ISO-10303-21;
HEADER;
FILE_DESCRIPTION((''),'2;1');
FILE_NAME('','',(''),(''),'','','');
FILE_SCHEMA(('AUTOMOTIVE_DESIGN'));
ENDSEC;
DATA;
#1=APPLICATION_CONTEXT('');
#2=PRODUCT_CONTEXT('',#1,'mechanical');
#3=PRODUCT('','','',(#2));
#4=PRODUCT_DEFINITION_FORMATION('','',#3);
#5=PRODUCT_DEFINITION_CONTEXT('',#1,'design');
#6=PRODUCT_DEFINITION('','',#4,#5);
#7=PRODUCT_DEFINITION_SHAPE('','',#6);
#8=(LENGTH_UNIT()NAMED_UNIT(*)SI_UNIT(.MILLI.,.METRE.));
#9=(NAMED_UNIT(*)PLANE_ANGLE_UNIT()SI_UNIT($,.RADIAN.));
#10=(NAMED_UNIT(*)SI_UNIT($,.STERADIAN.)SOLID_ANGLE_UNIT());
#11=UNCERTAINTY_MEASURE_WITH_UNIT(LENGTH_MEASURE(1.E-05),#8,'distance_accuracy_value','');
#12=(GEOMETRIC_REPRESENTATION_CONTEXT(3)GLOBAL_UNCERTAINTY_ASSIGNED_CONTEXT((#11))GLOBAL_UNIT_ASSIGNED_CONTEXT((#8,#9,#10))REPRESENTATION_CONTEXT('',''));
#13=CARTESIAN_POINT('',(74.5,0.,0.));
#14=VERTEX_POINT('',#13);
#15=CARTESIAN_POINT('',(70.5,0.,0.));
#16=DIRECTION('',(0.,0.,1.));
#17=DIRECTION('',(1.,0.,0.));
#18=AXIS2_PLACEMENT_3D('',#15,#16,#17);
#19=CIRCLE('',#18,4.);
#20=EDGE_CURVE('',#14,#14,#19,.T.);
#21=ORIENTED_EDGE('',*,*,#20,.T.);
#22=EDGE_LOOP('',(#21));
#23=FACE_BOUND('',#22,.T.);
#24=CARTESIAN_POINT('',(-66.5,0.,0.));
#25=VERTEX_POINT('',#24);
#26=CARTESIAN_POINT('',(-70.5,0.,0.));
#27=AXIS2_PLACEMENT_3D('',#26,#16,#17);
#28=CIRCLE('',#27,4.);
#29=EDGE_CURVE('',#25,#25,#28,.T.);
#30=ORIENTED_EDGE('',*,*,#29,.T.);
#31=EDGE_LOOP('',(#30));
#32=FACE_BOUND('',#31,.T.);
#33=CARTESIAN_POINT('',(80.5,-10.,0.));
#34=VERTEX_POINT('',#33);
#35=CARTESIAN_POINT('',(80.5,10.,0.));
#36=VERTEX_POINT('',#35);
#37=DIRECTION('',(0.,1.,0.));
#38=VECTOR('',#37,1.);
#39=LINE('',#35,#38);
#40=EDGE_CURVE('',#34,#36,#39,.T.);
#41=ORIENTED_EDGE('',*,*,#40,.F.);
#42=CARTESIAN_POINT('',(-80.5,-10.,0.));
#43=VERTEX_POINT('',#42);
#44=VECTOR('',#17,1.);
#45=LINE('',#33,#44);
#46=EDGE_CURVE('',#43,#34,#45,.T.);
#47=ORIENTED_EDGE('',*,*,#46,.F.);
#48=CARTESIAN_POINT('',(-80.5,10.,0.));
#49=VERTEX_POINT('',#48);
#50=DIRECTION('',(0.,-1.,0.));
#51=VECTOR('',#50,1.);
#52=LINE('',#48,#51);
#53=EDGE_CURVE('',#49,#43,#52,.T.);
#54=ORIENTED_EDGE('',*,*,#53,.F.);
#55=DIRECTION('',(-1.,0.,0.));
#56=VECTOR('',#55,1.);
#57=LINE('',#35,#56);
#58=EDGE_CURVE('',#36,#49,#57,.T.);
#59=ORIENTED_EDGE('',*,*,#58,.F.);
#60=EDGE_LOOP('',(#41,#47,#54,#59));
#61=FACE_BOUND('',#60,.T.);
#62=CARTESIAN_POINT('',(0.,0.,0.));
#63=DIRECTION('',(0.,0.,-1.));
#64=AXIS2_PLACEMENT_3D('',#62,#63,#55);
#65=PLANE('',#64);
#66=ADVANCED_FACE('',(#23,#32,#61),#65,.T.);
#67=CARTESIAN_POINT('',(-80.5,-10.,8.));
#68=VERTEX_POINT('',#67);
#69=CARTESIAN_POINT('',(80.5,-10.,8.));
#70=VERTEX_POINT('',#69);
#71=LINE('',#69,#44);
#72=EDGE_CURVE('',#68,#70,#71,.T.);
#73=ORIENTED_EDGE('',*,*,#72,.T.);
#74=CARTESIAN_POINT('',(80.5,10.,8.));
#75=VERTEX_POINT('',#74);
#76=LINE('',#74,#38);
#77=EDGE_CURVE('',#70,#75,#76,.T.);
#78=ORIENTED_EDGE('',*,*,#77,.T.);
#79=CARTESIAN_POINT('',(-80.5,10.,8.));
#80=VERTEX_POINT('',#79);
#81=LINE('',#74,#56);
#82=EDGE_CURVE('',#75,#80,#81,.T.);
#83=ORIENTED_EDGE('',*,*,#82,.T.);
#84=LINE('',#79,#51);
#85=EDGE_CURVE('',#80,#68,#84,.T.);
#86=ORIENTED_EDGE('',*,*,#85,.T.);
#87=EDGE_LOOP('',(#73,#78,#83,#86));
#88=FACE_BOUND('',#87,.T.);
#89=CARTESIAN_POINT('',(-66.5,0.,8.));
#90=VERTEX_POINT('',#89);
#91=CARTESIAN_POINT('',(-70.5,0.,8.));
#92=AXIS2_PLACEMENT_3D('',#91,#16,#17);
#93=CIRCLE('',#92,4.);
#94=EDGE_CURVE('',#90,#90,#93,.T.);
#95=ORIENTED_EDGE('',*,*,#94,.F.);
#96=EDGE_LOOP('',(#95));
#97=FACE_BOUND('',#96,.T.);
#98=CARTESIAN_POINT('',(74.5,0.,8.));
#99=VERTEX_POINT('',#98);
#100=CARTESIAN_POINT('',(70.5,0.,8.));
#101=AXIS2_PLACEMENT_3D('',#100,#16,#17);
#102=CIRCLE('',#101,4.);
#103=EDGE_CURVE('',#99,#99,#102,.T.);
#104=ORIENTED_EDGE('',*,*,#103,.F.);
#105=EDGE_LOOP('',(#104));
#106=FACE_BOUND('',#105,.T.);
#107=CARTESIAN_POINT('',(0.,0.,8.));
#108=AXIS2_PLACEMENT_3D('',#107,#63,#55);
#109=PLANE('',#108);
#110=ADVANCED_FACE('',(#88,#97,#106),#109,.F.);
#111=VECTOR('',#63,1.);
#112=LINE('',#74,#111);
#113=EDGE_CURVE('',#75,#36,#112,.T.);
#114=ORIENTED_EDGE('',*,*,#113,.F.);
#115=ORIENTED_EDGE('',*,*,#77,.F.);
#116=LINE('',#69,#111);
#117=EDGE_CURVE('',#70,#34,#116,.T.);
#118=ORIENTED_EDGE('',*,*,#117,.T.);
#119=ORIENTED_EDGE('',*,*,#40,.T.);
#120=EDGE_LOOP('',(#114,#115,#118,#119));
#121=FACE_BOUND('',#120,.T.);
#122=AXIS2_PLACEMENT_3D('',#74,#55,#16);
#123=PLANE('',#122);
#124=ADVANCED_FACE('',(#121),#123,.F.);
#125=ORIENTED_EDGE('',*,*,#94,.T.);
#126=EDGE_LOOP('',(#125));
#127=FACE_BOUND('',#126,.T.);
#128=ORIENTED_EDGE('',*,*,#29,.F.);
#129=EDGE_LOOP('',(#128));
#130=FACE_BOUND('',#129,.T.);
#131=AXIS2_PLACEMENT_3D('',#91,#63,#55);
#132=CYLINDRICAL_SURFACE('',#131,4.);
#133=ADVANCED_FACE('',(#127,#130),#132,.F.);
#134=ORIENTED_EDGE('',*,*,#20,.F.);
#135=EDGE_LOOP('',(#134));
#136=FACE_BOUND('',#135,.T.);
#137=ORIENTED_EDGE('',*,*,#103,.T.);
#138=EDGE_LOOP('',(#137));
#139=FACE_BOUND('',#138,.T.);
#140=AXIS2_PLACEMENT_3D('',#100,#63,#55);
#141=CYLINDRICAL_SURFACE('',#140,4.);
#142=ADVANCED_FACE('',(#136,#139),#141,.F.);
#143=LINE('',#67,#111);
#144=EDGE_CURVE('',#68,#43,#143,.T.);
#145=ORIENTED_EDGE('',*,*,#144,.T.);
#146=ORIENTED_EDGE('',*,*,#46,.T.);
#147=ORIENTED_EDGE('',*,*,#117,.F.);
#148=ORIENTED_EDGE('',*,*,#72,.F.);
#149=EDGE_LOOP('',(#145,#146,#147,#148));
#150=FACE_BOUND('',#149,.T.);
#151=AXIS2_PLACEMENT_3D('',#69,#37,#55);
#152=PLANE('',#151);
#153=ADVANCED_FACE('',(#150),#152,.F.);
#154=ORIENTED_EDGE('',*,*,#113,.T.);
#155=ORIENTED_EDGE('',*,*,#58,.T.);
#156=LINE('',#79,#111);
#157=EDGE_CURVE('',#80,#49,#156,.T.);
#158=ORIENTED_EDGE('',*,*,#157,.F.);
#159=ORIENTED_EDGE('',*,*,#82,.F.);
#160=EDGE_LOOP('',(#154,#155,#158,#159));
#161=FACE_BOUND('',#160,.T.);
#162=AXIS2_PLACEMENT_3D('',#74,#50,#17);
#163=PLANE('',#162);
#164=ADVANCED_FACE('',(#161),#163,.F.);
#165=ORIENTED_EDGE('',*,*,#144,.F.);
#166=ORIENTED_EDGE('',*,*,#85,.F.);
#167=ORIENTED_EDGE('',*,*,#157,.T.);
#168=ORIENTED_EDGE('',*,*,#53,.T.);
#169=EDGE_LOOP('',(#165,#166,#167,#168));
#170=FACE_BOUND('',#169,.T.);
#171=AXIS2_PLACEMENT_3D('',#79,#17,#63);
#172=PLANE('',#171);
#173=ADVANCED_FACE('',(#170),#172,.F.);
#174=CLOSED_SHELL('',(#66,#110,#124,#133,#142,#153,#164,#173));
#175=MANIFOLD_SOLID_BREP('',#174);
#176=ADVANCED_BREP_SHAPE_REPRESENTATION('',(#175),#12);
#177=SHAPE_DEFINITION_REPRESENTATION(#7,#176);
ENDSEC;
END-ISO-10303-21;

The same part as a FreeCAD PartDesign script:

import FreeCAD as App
import Part
import Sketcher
from FreeCAD import Vector
Q = App.Units.Quantity


def add_polygon(sketch, points):
    """Adds a closed chain of lines whose ends are joined by coincident constraints."""
    first, n = sketch.GeometryCount, len(points)
    for a, b in zip(points, points[1:] + points[:1]):
        sketch.addGeometry(Part.LineSegment(App.Vector(*a, 0), App.Vector(*b, 0)), False)
    for i in range(n):
        sketch.addConstraint(Sketcher.Constraint("Coincident", first + i, 2, first + (i + 1) % n, 1))

doc = App.newDocument("Part")
params = doc.addObject("Spreadsheet::Sheet", "Params")
for row, (alias, value) in enumerate([
    ("sketch1_diameter", "8 mm"),
    ("sketch1_width", "161 mm"),
    ("sketch1_height", "20 mm"),
    ("pad1_length", "8 mm"),
], start=1):
    params.set(f"A{row}", alias)
    params.set(f"B{row}", "=" + value)
    params.setAlias(f"B{row}", alias)

body = doc.addObject("PartDesign::Body", "Body")

sketch1 = doc.addObject("Sketcher::SketchObject", "Sketch")
body.addObject(sketch1)
sketch1.AttachmentSupport = (doc.XY_Plane, [""])
sketch1.MapMode = "FlatFace"
add_polygon(sketch1, [(-80.5, 10), (-80.5, -10), (80.5, -10), (80.5, 10)])
sketch1.addGeometry(Part.Circle(Vector(-70.5, 0, 0), Vector(0, 0, 1), 4), False)
sketch1.addGeometry(Part.Circle(Vector(70.5, 0, 0), Vector(0, 0, 1), 4), False)
sketch1.addConstraint([
    Sketcher.Constraint("Vertical", 0),
    Sketcher.Constraint("Horizontal", 1),
    Sketcher.Constraint("Vertical", 2),
    Sketcher.Constraint("Horizontal", 3),
    Sketcher.Constraint("Equal", 4, 5),
    Sketcher.Constraint("Symmetric", 4, 3, 5, 3, -1, 1),
    Sketcher.Constraint("Symmetric", 0, 2, 2, 2, -1, 1),
    Sketcher.Constraint("PointOnObject", 4, 3, -1),
    Sketcher.Constraint("Diameter", 4, Q("8 mm")),
    Sketcher.Constraint("DistanceX", 1, 1, 1, 2, Q("161 mm")),
    Sketcher.Constraint("DistanceY", 0, 2, 0, 1, Q("20 mm")),
    Sketcher.Constraint("DistanceX", 4, 3, 5, 3, Q("141 mm")),
])
sketch1.setExpression("Constraints[12]", "Params.sketch1_diameter")
sketch1.setExpression("Constraints[13]", "Params.sketch1_width")
sketch1.setExpression("Constraints[14]", "Params.sketch1_height")
pad1 = doc.addObject("PartDesign::Pad", "Pad")
body.addObject(pad1)
pad1.Profile = sketch1
pad1.setExpression("Length", "Params.pad1_length")

doc.recompute()
